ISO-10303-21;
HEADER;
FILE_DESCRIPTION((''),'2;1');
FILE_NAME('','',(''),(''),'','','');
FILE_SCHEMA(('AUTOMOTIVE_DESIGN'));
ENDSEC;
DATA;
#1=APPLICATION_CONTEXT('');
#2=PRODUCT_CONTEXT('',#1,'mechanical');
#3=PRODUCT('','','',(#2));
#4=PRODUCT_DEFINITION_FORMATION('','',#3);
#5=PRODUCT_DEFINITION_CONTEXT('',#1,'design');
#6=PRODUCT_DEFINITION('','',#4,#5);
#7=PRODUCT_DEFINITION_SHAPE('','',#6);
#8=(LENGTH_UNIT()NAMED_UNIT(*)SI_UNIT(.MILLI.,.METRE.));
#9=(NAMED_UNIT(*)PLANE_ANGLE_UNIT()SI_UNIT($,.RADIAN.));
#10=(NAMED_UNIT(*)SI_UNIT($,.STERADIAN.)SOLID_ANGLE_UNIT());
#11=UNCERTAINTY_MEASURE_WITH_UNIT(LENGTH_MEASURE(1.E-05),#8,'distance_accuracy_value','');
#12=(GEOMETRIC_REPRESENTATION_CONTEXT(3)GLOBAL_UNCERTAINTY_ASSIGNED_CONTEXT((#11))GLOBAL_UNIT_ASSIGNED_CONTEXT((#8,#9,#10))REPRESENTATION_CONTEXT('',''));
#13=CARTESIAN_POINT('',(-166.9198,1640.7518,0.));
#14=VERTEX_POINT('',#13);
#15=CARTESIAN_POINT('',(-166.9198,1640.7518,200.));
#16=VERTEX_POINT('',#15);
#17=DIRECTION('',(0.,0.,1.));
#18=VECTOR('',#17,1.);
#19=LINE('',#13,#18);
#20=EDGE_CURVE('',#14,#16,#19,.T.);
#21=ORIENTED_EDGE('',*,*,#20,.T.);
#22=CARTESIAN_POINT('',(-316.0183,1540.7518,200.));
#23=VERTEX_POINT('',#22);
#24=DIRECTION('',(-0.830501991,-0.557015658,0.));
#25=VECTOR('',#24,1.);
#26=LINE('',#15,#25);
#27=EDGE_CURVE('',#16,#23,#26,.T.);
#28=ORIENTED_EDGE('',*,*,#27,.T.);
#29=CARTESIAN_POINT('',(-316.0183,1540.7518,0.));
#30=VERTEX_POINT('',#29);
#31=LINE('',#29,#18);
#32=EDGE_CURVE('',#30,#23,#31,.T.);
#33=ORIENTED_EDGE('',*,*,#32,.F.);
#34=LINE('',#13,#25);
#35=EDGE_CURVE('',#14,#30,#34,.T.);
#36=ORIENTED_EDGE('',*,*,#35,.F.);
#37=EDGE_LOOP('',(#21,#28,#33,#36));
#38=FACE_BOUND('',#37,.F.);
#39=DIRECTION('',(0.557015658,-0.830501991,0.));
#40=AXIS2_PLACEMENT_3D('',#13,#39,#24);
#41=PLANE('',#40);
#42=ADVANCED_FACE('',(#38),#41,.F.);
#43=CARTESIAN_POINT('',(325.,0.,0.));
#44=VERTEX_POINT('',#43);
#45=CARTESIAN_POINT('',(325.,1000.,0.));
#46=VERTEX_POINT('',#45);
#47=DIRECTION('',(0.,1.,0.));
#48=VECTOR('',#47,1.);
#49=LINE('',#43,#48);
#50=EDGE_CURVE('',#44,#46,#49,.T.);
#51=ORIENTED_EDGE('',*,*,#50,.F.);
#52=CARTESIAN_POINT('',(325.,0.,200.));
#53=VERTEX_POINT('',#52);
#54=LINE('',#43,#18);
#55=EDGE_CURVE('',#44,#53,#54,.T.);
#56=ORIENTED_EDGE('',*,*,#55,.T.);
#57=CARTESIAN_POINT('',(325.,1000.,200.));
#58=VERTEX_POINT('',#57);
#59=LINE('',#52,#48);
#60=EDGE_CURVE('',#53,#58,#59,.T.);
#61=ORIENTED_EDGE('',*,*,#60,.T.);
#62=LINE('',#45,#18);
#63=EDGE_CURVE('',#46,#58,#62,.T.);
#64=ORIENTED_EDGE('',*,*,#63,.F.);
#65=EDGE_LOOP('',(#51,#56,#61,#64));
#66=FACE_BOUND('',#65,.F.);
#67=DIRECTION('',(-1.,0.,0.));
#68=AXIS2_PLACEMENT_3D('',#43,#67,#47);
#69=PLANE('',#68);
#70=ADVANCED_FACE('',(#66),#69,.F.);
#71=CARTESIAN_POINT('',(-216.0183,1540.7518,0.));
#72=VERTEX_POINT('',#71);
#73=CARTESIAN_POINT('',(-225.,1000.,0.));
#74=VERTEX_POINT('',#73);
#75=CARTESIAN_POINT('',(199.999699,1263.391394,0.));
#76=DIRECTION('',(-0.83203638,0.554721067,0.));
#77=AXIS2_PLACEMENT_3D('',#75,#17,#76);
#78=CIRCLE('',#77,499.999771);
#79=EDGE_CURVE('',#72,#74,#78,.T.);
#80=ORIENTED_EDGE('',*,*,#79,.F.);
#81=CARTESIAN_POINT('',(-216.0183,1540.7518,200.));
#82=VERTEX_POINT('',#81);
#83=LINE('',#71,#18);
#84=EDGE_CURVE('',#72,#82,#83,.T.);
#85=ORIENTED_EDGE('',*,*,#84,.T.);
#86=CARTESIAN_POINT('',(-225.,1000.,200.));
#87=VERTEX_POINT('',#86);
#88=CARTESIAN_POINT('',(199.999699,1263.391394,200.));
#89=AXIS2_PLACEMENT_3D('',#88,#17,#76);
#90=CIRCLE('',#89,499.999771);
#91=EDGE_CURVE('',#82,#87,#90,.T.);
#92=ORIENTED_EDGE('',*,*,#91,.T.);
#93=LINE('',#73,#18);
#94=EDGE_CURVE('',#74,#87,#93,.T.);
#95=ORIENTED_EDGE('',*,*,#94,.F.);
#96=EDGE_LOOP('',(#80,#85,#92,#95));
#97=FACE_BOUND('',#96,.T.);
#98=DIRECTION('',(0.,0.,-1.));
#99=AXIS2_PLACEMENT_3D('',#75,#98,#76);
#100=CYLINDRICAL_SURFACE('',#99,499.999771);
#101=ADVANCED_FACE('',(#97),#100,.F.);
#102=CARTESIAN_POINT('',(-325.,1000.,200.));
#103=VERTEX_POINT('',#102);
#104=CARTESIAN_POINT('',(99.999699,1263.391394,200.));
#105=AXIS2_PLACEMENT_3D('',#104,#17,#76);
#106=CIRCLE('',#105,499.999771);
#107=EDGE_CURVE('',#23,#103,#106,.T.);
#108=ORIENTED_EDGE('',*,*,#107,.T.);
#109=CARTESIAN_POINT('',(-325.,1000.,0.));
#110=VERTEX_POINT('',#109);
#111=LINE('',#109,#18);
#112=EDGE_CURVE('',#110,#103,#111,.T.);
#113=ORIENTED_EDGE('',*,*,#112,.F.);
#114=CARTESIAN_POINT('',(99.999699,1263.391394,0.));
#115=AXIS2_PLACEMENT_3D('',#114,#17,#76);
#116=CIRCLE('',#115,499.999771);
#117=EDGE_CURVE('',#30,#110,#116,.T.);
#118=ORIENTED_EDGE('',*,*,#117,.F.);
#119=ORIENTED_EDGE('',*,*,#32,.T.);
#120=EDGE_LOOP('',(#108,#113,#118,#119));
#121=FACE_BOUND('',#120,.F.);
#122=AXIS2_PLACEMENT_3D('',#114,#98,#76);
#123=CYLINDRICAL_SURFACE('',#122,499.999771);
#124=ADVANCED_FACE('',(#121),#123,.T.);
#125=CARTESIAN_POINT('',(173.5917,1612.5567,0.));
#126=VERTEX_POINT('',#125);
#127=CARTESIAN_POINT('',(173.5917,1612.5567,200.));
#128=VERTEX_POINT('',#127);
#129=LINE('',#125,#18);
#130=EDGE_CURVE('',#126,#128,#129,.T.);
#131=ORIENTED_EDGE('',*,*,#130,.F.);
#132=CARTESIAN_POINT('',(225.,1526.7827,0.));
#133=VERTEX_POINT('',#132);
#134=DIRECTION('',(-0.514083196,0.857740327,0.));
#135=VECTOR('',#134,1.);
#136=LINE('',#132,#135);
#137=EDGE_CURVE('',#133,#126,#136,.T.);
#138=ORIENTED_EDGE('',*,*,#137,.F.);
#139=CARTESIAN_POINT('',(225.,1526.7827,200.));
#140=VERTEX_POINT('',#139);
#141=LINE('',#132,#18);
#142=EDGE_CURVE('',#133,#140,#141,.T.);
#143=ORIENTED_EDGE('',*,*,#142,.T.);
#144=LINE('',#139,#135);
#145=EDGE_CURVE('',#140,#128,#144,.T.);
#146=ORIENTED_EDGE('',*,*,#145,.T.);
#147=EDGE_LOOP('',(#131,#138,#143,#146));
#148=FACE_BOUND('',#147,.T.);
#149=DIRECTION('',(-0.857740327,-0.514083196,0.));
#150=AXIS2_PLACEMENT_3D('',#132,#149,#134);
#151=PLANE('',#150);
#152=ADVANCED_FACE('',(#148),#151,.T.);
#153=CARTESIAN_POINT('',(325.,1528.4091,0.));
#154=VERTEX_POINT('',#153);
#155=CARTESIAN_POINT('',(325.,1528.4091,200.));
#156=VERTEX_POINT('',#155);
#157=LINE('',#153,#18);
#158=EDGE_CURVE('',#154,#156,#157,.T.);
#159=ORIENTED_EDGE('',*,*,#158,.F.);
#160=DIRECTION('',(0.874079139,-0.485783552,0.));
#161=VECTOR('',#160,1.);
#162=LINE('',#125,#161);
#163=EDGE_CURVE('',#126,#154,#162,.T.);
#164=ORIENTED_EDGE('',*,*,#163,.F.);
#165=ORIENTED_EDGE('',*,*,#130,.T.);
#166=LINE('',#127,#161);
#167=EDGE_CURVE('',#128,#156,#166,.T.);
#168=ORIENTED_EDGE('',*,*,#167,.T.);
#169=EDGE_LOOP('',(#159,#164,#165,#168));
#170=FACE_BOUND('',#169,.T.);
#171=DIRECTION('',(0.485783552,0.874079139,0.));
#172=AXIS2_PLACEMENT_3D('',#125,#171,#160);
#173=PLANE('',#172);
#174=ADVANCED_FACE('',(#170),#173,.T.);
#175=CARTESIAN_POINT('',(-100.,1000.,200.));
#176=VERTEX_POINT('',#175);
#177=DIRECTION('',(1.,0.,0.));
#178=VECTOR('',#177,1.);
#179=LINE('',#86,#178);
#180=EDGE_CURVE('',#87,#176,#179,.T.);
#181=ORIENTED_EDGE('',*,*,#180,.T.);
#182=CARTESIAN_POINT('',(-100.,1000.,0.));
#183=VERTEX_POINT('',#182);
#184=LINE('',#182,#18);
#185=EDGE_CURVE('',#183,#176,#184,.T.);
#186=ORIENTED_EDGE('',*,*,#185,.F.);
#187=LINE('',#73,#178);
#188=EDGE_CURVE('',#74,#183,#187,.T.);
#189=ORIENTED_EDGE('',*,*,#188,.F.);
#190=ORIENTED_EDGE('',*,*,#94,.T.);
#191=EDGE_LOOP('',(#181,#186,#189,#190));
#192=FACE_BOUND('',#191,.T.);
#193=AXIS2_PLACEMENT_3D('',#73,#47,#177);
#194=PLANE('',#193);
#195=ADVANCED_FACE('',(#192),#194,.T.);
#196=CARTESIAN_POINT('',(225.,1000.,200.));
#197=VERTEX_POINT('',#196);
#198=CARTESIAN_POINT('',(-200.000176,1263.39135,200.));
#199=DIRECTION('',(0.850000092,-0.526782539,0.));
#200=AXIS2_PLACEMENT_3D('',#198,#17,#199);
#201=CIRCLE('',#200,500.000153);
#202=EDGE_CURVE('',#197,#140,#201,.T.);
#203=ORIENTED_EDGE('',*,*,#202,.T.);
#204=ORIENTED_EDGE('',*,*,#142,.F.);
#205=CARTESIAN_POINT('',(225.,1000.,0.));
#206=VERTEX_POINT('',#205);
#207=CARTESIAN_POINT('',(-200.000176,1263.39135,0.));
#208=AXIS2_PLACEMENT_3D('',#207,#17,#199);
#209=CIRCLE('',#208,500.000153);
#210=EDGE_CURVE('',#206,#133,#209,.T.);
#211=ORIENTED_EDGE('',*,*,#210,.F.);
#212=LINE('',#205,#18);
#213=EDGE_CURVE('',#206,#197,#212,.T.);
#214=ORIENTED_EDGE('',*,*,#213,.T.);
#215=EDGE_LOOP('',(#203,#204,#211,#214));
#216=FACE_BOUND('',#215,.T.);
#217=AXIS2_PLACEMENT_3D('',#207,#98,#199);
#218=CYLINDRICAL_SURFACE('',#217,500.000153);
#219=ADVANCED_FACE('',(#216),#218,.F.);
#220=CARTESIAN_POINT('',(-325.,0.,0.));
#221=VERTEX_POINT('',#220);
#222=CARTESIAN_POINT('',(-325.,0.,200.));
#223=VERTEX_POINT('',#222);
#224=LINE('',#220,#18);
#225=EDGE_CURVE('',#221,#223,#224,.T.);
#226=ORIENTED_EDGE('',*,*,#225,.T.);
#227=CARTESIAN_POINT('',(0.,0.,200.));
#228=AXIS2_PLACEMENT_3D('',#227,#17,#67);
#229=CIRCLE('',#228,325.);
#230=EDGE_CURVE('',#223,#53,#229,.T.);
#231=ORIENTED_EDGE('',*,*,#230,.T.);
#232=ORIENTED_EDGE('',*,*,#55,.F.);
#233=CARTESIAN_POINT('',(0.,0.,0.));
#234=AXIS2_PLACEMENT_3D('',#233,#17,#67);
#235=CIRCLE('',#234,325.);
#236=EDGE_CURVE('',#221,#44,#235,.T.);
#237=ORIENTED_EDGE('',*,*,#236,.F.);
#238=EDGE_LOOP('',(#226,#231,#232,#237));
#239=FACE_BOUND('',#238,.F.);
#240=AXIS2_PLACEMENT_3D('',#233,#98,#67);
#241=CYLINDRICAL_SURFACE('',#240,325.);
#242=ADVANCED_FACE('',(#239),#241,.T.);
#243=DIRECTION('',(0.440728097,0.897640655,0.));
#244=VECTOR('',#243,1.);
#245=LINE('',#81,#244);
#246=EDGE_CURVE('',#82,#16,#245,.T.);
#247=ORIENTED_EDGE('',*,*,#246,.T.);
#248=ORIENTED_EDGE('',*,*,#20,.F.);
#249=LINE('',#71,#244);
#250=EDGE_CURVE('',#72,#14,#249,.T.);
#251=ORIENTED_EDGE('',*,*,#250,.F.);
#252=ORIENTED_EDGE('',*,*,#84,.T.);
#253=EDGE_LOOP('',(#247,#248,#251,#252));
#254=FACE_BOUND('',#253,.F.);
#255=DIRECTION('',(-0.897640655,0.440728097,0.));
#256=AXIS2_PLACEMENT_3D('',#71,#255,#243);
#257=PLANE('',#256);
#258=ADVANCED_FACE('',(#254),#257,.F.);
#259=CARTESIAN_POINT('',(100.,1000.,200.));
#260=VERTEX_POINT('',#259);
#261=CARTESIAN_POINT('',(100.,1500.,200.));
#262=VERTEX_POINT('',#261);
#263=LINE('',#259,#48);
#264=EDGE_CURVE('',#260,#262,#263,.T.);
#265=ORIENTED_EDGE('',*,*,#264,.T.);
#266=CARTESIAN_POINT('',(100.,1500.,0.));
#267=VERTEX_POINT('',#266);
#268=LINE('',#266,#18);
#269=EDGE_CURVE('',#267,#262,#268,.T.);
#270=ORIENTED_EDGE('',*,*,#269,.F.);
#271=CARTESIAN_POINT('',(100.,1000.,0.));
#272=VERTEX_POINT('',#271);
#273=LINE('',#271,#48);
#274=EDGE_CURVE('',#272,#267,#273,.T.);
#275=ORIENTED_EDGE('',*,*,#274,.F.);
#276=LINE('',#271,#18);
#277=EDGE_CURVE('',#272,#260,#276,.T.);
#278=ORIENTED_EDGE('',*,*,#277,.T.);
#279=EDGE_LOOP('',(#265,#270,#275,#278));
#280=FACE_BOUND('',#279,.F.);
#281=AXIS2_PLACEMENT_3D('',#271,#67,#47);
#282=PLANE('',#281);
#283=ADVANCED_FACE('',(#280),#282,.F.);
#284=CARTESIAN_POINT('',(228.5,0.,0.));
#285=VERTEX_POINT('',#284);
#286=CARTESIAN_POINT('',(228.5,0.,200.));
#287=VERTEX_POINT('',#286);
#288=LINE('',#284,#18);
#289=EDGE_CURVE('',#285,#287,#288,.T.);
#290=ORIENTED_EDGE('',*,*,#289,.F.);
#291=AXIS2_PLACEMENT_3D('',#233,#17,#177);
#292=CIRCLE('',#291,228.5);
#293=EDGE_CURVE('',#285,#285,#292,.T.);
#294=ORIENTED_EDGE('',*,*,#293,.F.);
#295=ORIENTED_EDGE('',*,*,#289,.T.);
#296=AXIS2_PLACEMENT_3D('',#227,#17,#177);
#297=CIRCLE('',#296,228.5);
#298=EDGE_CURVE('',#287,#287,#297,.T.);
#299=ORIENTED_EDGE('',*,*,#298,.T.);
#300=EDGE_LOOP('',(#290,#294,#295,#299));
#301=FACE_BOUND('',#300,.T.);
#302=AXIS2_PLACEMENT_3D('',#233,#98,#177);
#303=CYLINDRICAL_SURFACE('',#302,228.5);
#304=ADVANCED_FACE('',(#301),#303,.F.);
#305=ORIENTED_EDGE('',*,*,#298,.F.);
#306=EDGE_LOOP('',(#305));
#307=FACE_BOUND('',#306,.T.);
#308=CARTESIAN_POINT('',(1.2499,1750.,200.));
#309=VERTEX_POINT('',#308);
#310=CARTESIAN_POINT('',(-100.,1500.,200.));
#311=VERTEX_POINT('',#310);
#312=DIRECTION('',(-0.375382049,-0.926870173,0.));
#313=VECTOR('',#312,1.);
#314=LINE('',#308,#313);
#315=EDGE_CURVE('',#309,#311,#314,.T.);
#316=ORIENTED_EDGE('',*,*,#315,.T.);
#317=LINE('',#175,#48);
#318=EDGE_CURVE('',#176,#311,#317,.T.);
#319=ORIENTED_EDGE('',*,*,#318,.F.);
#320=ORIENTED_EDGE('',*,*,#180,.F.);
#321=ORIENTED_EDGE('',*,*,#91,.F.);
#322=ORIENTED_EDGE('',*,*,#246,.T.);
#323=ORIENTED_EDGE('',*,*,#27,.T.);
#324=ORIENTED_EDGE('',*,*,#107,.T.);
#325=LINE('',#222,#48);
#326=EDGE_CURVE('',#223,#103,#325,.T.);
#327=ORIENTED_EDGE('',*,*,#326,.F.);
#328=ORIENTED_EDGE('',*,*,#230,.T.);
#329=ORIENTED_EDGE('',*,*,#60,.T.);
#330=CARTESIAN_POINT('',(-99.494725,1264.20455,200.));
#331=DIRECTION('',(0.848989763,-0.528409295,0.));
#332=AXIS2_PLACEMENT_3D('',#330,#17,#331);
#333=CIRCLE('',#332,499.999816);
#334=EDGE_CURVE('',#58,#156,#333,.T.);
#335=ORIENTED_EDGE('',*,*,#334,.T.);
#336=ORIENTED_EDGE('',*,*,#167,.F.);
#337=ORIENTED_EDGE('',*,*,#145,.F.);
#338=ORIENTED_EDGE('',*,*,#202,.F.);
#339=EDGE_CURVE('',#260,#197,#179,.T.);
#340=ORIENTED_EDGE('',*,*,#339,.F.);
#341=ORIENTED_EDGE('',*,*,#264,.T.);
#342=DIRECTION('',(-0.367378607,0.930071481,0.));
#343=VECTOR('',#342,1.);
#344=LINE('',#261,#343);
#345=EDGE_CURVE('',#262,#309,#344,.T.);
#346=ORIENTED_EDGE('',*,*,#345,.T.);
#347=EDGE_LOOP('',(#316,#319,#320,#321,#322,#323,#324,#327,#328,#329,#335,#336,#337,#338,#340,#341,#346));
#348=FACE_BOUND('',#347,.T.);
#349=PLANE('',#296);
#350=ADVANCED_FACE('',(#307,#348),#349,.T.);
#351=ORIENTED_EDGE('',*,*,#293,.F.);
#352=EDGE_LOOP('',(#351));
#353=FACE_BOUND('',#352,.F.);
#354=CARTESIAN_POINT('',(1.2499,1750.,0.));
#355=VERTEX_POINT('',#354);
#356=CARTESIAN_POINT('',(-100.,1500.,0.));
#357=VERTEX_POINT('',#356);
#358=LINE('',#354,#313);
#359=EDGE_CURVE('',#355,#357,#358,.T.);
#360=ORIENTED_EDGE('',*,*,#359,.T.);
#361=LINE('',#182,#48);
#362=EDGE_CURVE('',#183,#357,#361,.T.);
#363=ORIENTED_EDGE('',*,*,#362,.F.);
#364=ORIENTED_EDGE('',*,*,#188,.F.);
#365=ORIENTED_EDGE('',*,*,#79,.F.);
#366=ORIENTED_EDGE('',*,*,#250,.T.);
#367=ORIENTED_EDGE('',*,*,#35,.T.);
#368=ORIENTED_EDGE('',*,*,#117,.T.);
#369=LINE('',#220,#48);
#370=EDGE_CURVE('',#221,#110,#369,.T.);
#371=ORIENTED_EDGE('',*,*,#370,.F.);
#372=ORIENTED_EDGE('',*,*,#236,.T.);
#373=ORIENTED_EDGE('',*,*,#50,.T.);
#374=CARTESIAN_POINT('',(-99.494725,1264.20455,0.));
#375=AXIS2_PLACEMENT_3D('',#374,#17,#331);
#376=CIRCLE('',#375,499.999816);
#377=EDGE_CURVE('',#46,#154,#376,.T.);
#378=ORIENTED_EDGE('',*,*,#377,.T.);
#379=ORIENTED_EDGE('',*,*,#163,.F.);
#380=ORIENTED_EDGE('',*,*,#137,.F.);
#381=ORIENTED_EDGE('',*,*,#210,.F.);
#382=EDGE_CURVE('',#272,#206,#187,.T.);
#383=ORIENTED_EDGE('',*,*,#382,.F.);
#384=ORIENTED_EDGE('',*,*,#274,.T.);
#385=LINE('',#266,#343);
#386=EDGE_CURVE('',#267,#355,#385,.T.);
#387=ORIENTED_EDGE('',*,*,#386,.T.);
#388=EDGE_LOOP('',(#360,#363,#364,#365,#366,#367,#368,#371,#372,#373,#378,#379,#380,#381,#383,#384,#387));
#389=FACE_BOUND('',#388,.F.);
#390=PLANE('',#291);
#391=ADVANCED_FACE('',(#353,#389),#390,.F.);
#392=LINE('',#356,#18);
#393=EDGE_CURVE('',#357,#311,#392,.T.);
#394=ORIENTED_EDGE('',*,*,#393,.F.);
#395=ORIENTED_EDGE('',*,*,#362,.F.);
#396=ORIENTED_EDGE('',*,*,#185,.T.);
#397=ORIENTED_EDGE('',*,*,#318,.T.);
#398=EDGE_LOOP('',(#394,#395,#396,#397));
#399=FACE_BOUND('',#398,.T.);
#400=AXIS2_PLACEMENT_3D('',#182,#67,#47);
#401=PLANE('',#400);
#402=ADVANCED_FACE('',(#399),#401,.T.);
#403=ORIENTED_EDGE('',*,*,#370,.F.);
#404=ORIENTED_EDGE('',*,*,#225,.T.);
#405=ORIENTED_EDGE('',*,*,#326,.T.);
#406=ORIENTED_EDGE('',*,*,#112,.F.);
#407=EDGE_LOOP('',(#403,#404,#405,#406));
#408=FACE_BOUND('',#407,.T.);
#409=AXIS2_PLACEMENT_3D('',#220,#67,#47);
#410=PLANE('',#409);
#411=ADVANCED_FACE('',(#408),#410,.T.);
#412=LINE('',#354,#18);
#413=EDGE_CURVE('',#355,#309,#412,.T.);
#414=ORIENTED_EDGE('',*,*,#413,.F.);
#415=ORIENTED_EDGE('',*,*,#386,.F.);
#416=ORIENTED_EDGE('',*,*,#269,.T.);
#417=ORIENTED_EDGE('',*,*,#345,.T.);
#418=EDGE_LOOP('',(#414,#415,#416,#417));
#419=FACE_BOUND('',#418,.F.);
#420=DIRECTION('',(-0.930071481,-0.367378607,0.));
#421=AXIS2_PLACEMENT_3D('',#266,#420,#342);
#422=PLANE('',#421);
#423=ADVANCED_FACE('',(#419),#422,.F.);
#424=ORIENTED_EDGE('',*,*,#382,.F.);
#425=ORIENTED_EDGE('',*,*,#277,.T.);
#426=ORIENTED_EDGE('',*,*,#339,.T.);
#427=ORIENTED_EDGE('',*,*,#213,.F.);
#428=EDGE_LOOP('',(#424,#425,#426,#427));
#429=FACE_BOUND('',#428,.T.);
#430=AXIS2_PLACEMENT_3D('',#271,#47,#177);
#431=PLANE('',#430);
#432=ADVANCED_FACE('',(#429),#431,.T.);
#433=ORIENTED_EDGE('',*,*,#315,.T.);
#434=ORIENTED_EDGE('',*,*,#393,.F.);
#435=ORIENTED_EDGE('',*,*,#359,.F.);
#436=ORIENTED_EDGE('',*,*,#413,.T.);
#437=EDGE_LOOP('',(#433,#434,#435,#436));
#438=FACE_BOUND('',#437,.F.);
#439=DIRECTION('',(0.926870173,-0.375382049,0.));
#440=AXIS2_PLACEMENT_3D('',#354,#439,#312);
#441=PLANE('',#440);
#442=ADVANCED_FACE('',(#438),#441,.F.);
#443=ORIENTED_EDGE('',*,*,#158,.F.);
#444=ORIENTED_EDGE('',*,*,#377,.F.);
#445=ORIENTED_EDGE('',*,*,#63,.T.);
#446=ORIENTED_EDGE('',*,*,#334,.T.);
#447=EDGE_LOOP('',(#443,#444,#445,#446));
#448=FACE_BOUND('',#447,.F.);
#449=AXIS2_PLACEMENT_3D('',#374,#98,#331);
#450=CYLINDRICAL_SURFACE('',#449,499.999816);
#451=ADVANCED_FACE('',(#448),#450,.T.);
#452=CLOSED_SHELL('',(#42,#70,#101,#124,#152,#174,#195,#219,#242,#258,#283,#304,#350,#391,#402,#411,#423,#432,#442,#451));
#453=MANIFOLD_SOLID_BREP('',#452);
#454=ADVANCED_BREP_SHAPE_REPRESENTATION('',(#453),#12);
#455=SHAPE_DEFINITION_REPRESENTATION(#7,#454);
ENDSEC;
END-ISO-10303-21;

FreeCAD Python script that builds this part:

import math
import FreeCAD as App
import Part
import Sketcher
from FreeCAD import Vector
Q = App.Units.Quantity

doc = App.newDocument("Part")
body = doc.addObject("PartDesign::Body", "Body")

# Sketch on XY plane
sketch1 = body.newObject("Sketcher::SketchObject", "Sketch")
sketch1.AttachmentSupport = (doc.getObject("XY_Plane"), [""])
sketch1.MapMode = "FlatFace"
sketch1.addGeometry([
    Part.LineSegment(Vector(-325, 1000, 0), Vector(-325, 0, 0)),  # 0
    Part.ArcOfCircle(Part.Circle(Vector(0, 0, 0), Vector(0, 0, 1), 325), math.radians(180), math.radians(360)),  # 1
    Part.LineSegment(Vector(325, 0, 0), Vector(325, 1000, 0)),  # 2
    Part.ArcOfCircle(Part.Circle(Vector(-99, 1264, 0), Vector(0, 0, 1), 500), math.radians(-32), math.radians(32)),  # 3
    Part.LineSegment(Vector(325, 1528, 0), Vector(174, 1613, 0)),  # 4
    Part.LineSegment(Vector(174, 1613, 0), Vector(225, 1527, 0)),  # 5
    Part.ArcOfCircle(Part.Circle(Vector(-200, 1263, 0), Vector(0, 0, 1), 500), math.radians(-32), math.radians(32)),  # 6
    Part.LineSegment(Vector(225, 1000, 0), Vector(100, 1000, 0)),  # 7
    Part.LineSegment(Vector(100, 1000, 0), Vector(100, 1500, 0)),  # 8
    Part.LineSegment(Vector(100, 1500, 0), Vector(1, 1750, 0)),  # 9
    Part.LineSegment(Vector(1, 1750, 0), Vector(-100, 1500, 0)),  # 10
    Part.LineSegment(Vector(-100, 1500, 0), Vector(-100, 1000, 0)),  # 11
    Part.LineSegment(Vector(-100, 1000, 0), Vector(-225, 1000, 0)),  # 12
    Part.ArcOfCircle(Part.Circle(Vector(200, 1263, 0), Vector(0, 0, 1), 500), math.radians(146), math.radians(212)),  # 13
    Part.LineSegment(Vector(-216, 1541, 0), Vector(-167, 1641, 0)),  # 14
    Part.LineSegment(Vector(-167, 1641, 0), Vector(-316, 1541, 0)),  # 15
    Part.ArcOfCircle(Part.Circle(Vector(100, 1263, 0), Vector(0, 0, 1), 500), math.radians(146), math.radians(212)),  # 16
    Part.Circle(Vector(0, 0, 0), Vector(0, 0, 1), 228),  # 17
], False)
sketch1.addConstraint([
    Sketcher.Constraint("Tangent", 0, 2, 1, 1),
    Sketcher.Constraint("Tangent", 1, 2, 2, 1),
    Sketcher.Constraint("Coincident", 2, 2, 3, 1),
    Sketcher.Constraint("Coincident", 3, 2, 4, 1),
    Sketcher.Constraint("Coincident", 4, 2, 5, 1),
    Sketcher.Constraint("Coincident", 5, 2, 6, 2),
    Sketcher.Constraint("Coincident", 6, 1, 7, 1),
    Sketcher.Constraint("Coincident", 7, 2, 8, 1),
    Sketcher.Constraint("Coincident", 8, 2, 9, 1),
    Sketcher.Constraint("Coincident", 9, 2, 10, 1),
    Sketcher.Constraint("Coincident", 10, 2, 11, 1),
    Sketcher.Constraint("Coincident", 11, 2, 12, 1),
    Sketcher.Constraint("Coincident", 12, 2, 13, 2),
    Sketcher.Constraint("Coincident", 13, 1, 14, 1),
    Sketcher.Constraint("Coincident", 14, 2, 15, 1),
    Sketcher.Constraint("Coincident", 15, 2, 16, 1),
    Sketcher.Constraint("Coincident", 16, 2, 0, 1),
    Sketcher.Constraint("Vertical", 0),
    Sketcher.Constraint("Vertical", 2),
    Sketcher.Constraint("Horizontal", 7),
    Sketcher.Constraint("Vertical", 8),
    Sketcher.Constraint("Vertical", 11),
    Sketcher.Constraint("Horizontal", 12),
    Sketcher.Constraint("Coincident", 1, 3, -1, 1),
    Sketcher.Constraint("Coincident", 17, 3, -1, 1),
    Sketcher.Constraint("Equal", 3, 6),
    Sketcher.Constraint("Equal", 6, 13),
    Sketcher.Constraint("Equal", 13, 16),
    Sketcher.Constraint("Symmetric", 6, 3, 13, 3, -2),
    Sketcher.Constraint("Symmetric", 8, 2, 10, 2, -2),
    Sketcher.Constraint("Horizontal", 13, 3, 16, 3),
    Sketcher.Constraint("Horizontal", 2, 2, 6, 1),
    Sketcher.Constraint("Horizontal", 7, 2, 11, 2),
    Sketcher.Constraint("Horizontal", 13, 1, 15, 2),
    Sketcher.Constraint("Horizontal", 12, 2, 16, 2),
    Sketcher.Constraint("Vertical", 2, 2, 3, 2),
    Sketcher.Constraint("Vertical", 5, 2, 6, 1),
    Sketcher.Constraint("Vertical", 16, 3, 7, 2),
    Sketcher.Constraint("Diameter", 17, Q("457 mm")),
    Sketcher.Constraint("Radius", 1, Q("325 mm")),
    Sketcher.Constraint("Radius", 3, Q("500 mm")),
    Sketcher.Constraint("DistanceY", 0, 2, 0, 1, Q("1000 mm")),
    Sketcher.Constraint("DistanceY", 8, 1, 8, 2, Q("500 mm")),
    Sketcher.Constraint("Distance", 5, Q("100 mm")),
    Sketcher.Constraint("DistanceX", 6, 3, -1, 1, Q("200 mm")),
    Sketcher.Constraint("DistanceX", -1, 1, 16, 3, Q("100 mm")),
    Sketcher.Constraint("DistanceY", 8, 2, 9, 2, Q("250 mm")),
    Sketcher.Constraint("DistanceY", 13, 1, 14, 2, Q("100 mm")),
    Sketcher.Constraint("Angle", 14, Q("63.8497 deg")),
    Sketcher.Constraint("DistanceX", -1, 1, 9, 2, Q("1.25 mm")),
    Sketcher.Constraint("DistanceX", 3, 3, -1, 1, Q("99.495 mm")),
    Sketcher.Constraint("DistanceY", 3, 3, 4, 2, Q("348.352 mm")),
    Sketcher.Constraint("DistanceY", 4, 2, 14, 2, Q("28.195 mm")),
])
pad1 = body.newObject("PartDesign::Pad", "Pad")
pad1.Profile = sketch1
pad1.Length = 200

doc.recompute()
